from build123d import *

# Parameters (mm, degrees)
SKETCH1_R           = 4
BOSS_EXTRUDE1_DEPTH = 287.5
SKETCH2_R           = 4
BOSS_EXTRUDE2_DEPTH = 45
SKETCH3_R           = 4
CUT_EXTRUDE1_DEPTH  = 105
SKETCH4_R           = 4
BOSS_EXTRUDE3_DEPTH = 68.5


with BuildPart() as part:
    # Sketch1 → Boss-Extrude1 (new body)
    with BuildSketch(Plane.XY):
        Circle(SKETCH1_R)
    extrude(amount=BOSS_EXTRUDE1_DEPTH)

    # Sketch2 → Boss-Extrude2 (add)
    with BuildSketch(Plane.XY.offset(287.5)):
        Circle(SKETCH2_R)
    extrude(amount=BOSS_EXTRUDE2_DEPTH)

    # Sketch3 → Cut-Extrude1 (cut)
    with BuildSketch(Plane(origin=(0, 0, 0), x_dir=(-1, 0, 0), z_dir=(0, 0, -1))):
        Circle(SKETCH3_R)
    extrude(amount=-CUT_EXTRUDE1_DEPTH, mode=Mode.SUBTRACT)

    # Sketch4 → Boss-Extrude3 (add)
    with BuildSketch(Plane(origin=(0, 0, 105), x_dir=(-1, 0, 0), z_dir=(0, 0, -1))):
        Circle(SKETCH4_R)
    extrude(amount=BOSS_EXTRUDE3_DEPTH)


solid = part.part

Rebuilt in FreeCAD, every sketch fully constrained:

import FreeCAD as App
import Part
import Sketcher
Q = App.Units.Quantity

doc = App.newDocument("Part")
body = doc.addObject("PartDesign::Body", "Body")

sketch1 = doc.addObject("Sketcher::SketchObject", "Sketch")
body.addObject(sketch1)
sketch1.AttachmentSupport = (doc.XY_Plane, [""])
sketch1.MapMode = "FlatFace"
sketch1.addGeometry(Part.Circle(App.Vector(0, 0, 0), App.Vector(0, 0, 1), 4), False)
sketch1.addConstraint(Sketcher.Constraint("Coincident", 0, 3, -1, 1))
sketch1.addConstraint(Sketcher.Constraint("Diameter", 0, Q("8 mm")))
pad1 = doc.addObject("PartDesign::Pad", "Pad")
body.addObject(pad1)
pad1.Profile = sketch1
pad1.Length = 287.5

sketch2 = doc.addObject("Sketcher::SketchObject", "Sketch001")
body.addObject(sketch2)
sketch2.AttachmentSupport = (doc.XY_Plane, [""])
sketch2.MapMode = "FlatFace"
sketch2.AttachmentOffset = App.Placement(App.Vector(0, 0, 287.5), App.Rotation())
sketch2.addGeometry(Part.Circle(App.Vector(0, 0, 0), App.Vector(0, 0, 1), 4), False)
sketch2.addConstraint(Sketcher.Constraint("Coincident", 0, 3, -1, 1))
sketch2.addConstraint(Sketcher.Constraint("Diameter", 0, Q("8 mm")))
pad2 = doc.addObject("PartDesign::Pad", "Pad001")
body.addObject(pad2)
pad2.Profile = sketch2
pad2.Length = 45

sketch3 = doc.addObject("Sketcher::SketchObject", "Sketch002")
body.addObject(sketch3)
sketch3.AttachmentSupport = (doc.XY_Plane, [""])
sketch3.MapMode = "FlatFace"
sketch3.addGeometry(Part.Circle(App.Vector(0, 0, 0), App.Vector(0, 0, 1), 4), False)
sketch3.addConstraint(Sketcher.Constraint("Coincident", 0, 3, -1, 1))
sketch3.addConstraint(Sketcher.Constraint("Diameter", 0, Q("8 mm")))
pocket1 = doc.addObject("PartDesign::Pocket", "Pocket")
body.addObject(pocket1)
pocket1.Profile = sketch3
pocket1.Length = 105
pocket1.Reversed = True

sketch4 = doc.addObject("Sketcher::SketchObject", "Sketch003")
body.addObject(sketch4)
sketch4.AttachmentSupport = (doc.XY_Plane, [""])
sketch4.MapMode = "FlatFace"
sketch4.AttachmentOffset = App.Placement(App.Vector(0, 0, 105), App.Rotation())
sketch4.addGeometry(Part.Circle(App.Vector(0, 0, 0), App.Vector(0, 0, 1), 4), False)
sketch4.addConstraint(Sketcher.Constraint("Coincident", 0, 3, -1, 1))
sketch4.addConstraint(Sketcher.Constraint("Diameter", 0, Q("8 mm")))
pad3 = doc.addObject("PartDesign::Pad", "Pad002")
body.addObject(pad3)
pad3.Profile = sketch4
pad3.Length = 68.5
pad3.Reversed = True

doc.recompute()
